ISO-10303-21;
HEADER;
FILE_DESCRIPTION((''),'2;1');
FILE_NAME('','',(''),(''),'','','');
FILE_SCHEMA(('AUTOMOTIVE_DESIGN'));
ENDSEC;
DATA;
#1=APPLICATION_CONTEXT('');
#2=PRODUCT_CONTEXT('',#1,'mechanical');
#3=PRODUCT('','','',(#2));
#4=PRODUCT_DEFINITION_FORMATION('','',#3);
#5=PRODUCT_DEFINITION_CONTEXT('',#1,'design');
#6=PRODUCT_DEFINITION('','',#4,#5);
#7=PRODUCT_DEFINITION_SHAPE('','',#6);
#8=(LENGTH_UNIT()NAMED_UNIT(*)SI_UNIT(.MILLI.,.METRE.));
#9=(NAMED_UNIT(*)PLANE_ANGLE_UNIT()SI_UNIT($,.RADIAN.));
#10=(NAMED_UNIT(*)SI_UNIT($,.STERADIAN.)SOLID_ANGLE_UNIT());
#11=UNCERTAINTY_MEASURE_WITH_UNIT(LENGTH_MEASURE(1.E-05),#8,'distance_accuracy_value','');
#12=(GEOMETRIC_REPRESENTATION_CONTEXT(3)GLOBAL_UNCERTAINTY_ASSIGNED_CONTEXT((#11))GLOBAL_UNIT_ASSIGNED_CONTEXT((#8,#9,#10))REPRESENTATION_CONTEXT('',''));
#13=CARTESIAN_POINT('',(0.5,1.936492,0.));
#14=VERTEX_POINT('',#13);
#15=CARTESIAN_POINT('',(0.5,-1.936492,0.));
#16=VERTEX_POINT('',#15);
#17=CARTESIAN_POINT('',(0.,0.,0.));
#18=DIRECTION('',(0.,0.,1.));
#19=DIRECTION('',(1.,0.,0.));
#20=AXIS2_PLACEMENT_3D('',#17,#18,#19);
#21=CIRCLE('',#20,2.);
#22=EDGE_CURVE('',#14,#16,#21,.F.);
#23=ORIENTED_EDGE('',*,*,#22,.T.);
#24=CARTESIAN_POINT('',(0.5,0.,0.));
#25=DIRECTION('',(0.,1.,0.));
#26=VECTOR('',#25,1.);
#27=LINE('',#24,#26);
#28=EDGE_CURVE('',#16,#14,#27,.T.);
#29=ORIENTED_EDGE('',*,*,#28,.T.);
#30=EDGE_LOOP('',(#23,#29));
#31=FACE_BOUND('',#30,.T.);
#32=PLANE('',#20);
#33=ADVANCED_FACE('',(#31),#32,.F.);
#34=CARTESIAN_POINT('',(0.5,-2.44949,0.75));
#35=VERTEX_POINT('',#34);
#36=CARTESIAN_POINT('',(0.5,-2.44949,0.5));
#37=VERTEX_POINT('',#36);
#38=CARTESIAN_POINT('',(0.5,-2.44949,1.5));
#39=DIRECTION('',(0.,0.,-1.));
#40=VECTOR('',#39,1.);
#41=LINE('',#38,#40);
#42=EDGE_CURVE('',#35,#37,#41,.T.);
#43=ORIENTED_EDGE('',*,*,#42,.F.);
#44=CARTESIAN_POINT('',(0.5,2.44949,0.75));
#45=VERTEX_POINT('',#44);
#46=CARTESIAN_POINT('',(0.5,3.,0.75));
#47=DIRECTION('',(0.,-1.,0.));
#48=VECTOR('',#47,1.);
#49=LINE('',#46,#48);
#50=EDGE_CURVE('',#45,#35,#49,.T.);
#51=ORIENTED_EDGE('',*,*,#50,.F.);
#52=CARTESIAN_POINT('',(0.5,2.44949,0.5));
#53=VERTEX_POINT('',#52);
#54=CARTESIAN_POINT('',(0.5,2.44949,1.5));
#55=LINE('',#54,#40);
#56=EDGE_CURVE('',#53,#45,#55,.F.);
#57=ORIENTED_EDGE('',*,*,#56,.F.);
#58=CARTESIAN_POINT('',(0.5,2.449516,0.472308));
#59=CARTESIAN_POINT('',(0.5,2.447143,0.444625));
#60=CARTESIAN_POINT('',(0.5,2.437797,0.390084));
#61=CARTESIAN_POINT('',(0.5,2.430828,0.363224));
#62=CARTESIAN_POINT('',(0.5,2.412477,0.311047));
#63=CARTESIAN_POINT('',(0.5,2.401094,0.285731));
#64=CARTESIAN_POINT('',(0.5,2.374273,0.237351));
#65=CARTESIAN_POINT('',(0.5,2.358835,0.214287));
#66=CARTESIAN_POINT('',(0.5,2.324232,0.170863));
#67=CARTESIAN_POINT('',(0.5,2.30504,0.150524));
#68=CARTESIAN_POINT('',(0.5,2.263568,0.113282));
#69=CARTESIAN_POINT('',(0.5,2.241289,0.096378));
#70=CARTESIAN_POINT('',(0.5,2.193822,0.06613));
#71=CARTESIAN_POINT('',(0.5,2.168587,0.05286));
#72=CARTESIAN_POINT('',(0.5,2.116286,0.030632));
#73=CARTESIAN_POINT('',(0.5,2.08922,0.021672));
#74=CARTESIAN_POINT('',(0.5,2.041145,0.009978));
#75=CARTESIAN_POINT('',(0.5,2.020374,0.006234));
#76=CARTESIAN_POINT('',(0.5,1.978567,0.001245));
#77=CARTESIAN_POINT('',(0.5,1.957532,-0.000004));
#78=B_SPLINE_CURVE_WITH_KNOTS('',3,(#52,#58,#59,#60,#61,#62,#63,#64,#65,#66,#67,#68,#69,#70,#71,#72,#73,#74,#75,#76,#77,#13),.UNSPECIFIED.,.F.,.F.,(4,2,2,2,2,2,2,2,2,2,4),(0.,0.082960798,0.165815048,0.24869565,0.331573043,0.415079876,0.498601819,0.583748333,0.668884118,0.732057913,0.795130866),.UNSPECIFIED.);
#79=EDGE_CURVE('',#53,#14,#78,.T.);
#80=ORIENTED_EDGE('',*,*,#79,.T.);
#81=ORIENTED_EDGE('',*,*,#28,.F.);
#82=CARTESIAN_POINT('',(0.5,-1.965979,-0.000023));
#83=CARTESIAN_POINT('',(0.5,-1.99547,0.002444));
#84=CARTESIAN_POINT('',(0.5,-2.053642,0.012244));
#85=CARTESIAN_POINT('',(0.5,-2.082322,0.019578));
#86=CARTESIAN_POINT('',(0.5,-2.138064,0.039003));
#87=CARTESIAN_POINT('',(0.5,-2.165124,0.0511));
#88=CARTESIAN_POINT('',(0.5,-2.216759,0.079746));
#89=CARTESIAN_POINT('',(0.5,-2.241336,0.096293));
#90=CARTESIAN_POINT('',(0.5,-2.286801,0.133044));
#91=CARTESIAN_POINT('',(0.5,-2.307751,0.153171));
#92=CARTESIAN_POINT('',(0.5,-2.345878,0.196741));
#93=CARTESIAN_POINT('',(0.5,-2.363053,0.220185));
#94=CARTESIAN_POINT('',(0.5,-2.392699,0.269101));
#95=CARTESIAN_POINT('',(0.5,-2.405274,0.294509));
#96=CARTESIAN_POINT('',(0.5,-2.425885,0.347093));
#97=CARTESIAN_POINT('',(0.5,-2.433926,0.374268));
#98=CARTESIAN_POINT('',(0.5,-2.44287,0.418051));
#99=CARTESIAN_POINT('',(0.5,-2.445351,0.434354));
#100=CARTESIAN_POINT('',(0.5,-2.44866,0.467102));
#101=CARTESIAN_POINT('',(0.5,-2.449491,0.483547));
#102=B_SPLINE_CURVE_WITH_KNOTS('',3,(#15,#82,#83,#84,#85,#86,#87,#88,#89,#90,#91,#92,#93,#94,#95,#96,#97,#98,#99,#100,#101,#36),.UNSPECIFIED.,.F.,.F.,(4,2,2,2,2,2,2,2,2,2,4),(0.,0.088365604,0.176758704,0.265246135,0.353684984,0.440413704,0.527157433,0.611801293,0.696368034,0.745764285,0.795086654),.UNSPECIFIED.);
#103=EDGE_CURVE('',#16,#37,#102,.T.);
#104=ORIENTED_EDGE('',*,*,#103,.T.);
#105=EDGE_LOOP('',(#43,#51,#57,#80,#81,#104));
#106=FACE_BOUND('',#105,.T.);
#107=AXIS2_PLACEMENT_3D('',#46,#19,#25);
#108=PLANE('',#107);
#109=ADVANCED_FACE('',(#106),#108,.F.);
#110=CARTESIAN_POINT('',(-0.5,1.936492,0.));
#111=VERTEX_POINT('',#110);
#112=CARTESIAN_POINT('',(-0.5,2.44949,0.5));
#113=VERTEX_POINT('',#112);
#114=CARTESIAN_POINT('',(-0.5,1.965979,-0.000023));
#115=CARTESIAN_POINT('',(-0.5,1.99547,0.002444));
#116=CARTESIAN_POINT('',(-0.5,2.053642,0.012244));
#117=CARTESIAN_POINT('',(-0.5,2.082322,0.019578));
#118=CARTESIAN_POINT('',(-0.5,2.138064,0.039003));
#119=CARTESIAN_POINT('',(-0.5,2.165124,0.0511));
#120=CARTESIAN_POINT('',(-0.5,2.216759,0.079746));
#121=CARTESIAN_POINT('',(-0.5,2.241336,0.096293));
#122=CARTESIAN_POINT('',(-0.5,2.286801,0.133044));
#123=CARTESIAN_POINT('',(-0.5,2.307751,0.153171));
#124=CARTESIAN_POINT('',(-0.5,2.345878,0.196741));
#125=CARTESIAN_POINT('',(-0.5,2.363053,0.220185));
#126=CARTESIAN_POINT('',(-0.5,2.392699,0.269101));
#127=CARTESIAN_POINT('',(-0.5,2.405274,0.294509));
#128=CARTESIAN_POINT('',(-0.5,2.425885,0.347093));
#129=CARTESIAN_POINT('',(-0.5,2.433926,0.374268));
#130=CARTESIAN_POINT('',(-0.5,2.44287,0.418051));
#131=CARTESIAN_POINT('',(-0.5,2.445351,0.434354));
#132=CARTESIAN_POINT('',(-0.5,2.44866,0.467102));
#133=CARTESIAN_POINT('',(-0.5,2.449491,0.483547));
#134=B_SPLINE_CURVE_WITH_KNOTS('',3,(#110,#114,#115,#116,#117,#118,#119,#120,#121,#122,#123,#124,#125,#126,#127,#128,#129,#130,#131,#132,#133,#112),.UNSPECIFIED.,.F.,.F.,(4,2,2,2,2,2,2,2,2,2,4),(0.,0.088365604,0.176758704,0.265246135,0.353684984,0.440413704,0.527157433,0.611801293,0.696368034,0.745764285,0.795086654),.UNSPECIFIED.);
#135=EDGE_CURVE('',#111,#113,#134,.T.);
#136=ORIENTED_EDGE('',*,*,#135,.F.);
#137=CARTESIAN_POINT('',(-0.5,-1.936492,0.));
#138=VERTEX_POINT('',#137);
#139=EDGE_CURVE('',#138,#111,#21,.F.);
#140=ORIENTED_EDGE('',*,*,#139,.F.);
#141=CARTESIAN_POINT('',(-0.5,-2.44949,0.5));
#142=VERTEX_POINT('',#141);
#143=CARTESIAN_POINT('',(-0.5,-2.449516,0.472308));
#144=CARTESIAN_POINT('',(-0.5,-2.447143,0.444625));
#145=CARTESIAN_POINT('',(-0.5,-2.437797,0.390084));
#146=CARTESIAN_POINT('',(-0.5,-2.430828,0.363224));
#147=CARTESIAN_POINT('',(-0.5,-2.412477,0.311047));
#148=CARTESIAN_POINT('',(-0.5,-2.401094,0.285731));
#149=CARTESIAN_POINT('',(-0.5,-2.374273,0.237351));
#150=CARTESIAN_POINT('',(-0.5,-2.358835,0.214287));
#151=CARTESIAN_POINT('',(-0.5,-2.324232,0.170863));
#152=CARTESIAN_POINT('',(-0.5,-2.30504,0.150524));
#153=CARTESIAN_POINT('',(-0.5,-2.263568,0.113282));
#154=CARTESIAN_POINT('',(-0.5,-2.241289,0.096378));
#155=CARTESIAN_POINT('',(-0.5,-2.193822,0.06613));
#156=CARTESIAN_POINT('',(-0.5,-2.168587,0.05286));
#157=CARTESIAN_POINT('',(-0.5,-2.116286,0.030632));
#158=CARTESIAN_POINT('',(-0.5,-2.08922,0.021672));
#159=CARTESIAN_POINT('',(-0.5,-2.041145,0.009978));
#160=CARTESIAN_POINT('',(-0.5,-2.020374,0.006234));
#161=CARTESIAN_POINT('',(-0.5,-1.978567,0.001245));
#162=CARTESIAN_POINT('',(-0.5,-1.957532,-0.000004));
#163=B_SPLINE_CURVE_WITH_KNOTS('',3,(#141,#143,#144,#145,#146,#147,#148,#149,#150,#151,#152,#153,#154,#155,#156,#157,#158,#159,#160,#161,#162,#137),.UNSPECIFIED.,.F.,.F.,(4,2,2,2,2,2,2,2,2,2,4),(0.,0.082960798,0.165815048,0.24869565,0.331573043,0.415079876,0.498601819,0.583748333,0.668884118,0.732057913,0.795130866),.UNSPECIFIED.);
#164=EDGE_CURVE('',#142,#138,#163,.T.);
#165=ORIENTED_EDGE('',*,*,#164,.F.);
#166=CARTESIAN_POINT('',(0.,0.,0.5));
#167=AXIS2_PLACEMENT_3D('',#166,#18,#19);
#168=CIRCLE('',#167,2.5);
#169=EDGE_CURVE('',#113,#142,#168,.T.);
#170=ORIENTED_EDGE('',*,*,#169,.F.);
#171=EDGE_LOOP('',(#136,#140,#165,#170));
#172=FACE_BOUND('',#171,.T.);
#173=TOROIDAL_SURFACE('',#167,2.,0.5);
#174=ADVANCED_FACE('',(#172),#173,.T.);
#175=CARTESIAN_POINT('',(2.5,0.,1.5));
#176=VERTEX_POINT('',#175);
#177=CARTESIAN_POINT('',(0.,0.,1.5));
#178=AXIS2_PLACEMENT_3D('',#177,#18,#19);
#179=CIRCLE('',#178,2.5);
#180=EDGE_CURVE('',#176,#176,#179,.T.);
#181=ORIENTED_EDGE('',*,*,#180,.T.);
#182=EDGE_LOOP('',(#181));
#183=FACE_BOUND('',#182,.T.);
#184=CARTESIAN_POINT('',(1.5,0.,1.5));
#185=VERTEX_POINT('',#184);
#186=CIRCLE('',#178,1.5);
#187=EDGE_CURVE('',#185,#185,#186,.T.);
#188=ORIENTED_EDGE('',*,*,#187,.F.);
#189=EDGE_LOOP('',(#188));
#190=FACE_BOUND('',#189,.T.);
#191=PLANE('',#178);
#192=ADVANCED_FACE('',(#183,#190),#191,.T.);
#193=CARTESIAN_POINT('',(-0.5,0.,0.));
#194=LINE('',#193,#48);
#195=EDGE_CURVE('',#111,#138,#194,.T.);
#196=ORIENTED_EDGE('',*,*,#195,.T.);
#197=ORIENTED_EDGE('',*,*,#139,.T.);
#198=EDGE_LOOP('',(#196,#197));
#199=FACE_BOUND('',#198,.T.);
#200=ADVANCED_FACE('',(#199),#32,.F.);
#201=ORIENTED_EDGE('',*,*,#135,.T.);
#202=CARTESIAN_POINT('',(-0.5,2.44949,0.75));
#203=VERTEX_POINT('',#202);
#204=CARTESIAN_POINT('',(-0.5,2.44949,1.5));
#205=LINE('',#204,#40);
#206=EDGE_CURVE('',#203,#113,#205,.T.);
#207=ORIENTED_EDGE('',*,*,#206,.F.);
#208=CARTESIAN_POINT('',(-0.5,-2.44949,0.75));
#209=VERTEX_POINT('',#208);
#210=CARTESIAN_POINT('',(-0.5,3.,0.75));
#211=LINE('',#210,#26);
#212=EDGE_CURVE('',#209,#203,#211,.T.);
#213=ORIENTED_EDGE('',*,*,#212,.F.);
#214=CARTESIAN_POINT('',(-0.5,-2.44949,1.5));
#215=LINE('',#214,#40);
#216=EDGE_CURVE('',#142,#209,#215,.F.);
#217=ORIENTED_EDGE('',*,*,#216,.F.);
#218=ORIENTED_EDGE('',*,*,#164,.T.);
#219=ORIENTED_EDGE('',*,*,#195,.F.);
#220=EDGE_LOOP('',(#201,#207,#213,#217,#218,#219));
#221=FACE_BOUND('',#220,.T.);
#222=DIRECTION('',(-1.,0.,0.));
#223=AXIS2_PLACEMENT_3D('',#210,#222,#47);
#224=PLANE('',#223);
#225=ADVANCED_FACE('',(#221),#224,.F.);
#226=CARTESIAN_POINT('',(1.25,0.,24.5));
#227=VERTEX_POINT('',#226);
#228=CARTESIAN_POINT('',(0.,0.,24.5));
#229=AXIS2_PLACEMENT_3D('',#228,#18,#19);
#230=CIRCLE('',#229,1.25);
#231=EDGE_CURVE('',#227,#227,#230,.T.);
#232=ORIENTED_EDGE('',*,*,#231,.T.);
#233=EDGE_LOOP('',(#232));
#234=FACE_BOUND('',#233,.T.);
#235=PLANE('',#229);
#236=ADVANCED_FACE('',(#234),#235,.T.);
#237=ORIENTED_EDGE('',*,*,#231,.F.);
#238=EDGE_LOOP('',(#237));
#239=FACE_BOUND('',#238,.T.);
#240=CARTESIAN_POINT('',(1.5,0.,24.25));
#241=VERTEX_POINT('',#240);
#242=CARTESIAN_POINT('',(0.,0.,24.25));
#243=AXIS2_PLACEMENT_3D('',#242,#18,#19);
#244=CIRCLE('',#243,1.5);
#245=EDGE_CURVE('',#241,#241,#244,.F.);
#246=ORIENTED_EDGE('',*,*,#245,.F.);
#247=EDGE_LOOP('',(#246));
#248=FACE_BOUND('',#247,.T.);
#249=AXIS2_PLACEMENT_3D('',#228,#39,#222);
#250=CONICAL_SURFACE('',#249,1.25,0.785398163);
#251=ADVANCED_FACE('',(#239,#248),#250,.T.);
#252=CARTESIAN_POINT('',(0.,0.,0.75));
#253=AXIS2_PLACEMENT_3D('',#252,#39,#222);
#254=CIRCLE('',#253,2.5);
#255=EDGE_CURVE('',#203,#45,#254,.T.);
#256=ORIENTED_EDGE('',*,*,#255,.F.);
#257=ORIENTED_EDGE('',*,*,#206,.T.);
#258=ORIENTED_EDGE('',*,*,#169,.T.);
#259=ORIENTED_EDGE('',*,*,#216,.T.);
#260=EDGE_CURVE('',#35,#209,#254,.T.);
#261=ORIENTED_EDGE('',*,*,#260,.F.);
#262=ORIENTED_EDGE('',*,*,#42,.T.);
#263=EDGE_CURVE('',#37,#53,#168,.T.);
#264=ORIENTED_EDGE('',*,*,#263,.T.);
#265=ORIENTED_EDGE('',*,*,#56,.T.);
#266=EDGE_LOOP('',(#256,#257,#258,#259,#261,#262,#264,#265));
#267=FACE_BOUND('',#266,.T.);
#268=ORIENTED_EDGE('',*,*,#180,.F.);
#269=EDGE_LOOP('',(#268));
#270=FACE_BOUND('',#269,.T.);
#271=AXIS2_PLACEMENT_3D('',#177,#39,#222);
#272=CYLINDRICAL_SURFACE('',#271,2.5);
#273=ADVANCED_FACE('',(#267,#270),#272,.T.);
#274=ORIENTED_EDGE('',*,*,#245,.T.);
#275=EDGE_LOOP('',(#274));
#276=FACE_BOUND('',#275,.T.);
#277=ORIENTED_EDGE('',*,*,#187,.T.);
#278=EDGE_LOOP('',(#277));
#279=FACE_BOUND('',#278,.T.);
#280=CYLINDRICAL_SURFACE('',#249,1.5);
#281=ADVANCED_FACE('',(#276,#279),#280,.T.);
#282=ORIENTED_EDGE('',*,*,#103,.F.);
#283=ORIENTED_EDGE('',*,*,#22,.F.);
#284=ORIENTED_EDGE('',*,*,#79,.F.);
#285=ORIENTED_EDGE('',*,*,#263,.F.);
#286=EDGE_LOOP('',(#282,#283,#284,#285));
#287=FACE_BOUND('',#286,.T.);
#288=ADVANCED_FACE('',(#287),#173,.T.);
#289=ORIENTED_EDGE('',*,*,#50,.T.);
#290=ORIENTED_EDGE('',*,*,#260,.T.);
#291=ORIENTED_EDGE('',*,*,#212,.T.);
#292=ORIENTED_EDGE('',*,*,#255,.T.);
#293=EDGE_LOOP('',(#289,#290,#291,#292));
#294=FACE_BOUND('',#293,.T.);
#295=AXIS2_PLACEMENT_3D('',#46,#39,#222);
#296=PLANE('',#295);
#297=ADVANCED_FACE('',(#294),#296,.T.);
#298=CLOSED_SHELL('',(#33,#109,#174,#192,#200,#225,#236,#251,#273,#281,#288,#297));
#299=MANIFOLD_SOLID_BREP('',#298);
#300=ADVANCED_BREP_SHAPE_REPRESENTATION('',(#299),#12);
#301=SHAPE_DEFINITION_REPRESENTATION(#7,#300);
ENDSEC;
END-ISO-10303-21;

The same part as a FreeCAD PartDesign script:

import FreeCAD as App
import Part
import Sketcher


def edges_at(feature, points):
    """Names of the edges that pass closest to the given points."""
    edges = feature.Shape.Edges
    near = lambda p: min(range(len(edges)), key=lambda i: edges[i].distToShape(Part.Vertex(*p))[0])
    return sorted({f"Edge{near(p) + 1}" for p in points})

doc = App.newDocument("Part")
body = doc.addObject("PartDesign::Body", "Body")

# Sketch on XY plane
sketch1 = body.newObject("Sketcher::SketchObject", "Sketch")
sketch1.AttachmentSupport = (doc.getObject("XY_Plane"), [""])
sketch1.MapMode = "FlatFace"
sketch1.addGeometry(Part.Circle(App.Vector(0, 0, 0), App.Vector(0, 0, 1), 2.5), False)
sketch1.addConstraint([
    Sketcher.Constraint("Coincident", 0, 3, -1, 1),
    Sketcher.Constraint("Diameter", 0, 5.0),
])
pad1 = body.newObject("PartDesign::Pad", "Pad")
pad1.Profile = sketch1
pad1.Length = 1.5

# Sketch on XY plane
sketch2 = body.newObject("Sketcher::SketchObject", "Sketch001")
sketch2.AttachmentSupport = (doc.getObject("XY_Plane"), [""])
sketch2.MapMode = "FlatFace"
sketch2.AttachmentOffset = App.Placement(App.Vector(0, 0, 1.5), App.Rotation())
sketch2.addGeometry(Part.Circle(App.Vector(0, 0, 0), App.Vector(0, 0, 1), 1.5), False)
sketch2.addConstraint([
    Sketcher.Constraint("Coincident", 0, 3, -1, 1),
    Sketcher.Constraint("Diameter", 0, 3.0),
])
pad2 = body.newObject("PartDesign::Pad", "Pad001")
pad2.Profile = sketch2
pad2.Length = 23
doc.recompute()

chamfer = body.newObject("PartDesign::Chamfer", "Chamfer")
chamfer.Base = (pad2, edges_at(pad2, [(-1.5, 0, 24.5)]))
chamfer.Size = 0.25

# Sketch on XY plane
sketch3 = body.newObject("Sketcher::SketchObject", "Sketch002")
sketch3.AttachmentSupport = (doc.getObject("XY_Plane"), [""])
sketch3.MapMode = "FlatFace"
sketch3.addGeometry([
    Part.LineSegment(App.Vector(0.5, 3, 0), App.Vector(0.5, -5, 0)),
    Part.LineSegment(App.Vector(0.5, -5, 0), App.Vector(-0.5, -5, 0)),
    Part.LineSegment(App.Vector(-0.5, -5, 0), App.Vector(-0.5, 3, 0)),
    Part.LineSegment(App.Vector(-0.5, 3, 0), App.Vector(0.5, 3, 0)),
], False)
sketch3.addConstraint([
    Sketcher.Constraint("Coincident", 0, 2, 1, 1),
    Sketcher.Constraint("Coincident", 1, 2, 2, 1),
    Sketcher.Constraint("Coincident", 2, 2, 3, 1),
    Sketcher.Constraint("Coincident", 3, 2, 0, 1),
    Sketcher.Constraint("Vertical", 0),
    Sketcher.Constraint("Horizontal", 1),
    Sketcher.Constraint("Vertical", 2),
    Sketcher.Constraint("Horizontal", 3),
    Sketcher.Constraint("DistanceX", 1, 2, 1, 1, 1.0),
    Sketcher.Constraint("DistanceY", 0, 2, 0, 1, 8.0),
    Sketcher.Constraint("DistanceY", 0, 2, -1, 1, 5.0),
    Sketcher.Constraint("DistanceX", -1, 1, 0, 2, 0.5),
])
pocket1 = body.newObject("PartDesign::Pocket", "Pocket")
pocket1.Profile = sketch3
pocket1.Length = 0.75
pocket1.Reversed = True
doc.recompute()

fillet = body.newObject("PartDesign::Fillet", "Fillet")
fillet.Base = (pocket1, edges_at(pocket1, [(1.936, 1.581, 0), (-2.5, 0, 0), (1.936, -1.581, 0)]))
fillet.Radius = 0.5

doc.recompute()
